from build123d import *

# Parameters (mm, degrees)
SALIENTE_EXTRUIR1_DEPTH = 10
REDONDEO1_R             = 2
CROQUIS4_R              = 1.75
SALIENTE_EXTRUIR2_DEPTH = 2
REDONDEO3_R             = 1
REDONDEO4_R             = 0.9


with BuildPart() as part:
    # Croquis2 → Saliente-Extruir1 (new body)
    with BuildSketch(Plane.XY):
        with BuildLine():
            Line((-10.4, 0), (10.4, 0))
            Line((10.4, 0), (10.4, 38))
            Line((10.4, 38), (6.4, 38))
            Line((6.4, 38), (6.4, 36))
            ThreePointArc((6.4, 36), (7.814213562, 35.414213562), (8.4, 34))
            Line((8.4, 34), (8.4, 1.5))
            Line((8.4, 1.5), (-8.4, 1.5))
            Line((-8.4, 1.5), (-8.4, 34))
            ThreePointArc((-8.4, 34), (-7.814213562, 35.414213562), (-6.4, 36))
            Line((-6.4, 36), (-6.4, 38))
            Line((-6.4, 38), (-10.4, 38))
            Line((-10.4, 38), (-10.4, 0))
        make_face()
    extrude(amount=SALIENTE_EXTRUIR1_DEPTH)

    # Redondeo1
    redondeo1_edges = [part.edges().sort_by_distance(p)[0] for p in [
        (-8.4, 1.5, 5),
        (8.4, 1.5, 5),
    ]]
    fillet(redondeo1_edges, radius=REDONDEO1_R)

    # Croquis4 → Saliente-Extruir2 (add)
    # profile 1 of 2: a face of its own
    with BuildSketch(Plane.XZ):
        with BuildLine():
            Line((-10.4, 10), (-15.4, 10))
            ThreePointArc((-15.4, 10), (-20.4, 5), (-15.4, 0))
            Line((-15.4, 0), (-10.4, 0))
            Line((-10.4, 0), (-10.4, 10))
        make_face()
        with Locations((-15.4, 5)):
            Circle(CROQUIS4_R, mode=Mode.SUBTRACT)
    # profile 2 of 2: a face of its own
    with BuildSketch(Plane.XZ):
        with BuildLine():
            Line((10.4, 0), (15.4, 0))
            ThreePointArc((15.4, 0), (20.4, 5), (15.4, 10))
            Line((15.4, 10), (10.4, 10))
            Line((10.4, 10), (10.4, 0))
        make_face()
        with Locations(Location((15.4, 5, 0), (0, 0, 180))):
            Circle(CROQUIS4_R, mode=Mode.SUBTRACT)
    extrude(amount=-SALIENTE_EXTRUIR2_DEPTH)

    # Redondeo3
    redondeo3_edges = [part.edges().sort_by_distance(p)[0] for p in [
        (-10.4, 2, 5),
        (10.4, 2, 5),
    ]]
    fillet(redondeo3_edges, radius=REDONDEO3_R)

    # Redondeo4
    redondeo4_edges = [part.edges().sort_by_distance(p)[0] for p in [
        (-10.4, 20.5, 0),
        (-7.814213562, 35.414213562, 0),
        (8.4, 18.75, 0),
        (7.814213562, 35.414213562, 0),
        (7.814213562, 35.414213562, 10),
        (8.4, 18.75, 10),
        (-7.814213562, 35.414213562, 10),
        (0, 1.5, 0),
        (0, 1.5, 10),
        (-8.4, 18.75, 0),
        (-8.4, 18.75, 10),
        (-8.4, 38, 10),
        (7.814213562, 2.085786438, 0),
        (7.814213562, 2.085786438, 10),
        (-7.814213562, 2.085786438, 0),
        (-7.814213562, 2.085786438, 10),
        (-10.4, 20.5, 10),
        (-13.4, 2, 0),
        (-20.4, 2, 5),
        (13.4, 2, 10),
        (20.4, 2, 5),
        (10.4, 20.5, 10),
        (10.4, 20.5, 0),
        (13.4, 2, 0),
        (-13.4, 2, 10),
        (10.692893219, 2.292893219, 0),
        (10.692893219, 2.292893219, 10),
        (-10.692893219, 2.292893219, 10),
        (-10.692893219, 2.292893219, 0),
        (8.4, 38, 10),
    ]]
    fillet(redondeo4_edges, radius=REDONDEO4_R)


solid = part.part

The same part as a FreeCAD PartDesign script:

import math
import FreeCAD as App
import Part
import Sketcher
from FreeCAD import Vector
Q = App.Units.Quantity


def edges_at(feature, points):
    """Names of the edges that pass closest to the given points."""
    edges = feature.Shape.Edges
    near = lambda p: min(range(len(edges)), key=lambda i: edges[i].distToShape(Part.Vertex(*p))[0])
    return sorted({f"Edge{near(p) + 1}" for p in points})

doc = App.newDocument("Part")
body = doc.addObject("PartDesign::Body", "Body")

# Sketch on XY plane
sketch1 = body.newObject("Sketcher::SketchObject", "Sketch")
sketch1.AttachmentSupport = (doc.getObject("XY_Plane"), [""])
sketch1.MapMode = "FlatFace"
sketch1.addGeometry(Part.LineSegment(Vector(-10.4, 0, 0), Vector(10.4, 0, 0)), False)
sketch1.addGeometry(Part.LineSegment(Vector(10.4, 0, 0), Vector(10.4, 38, 0)), False)
sketch1.addGeometry(Part.LineSegment(Vector(10.4, 38, 0), Vector(6.4, 38, 0)), False)
sketch1.addGeometry(Part.LineSegment(Vector(6.4, 38, 0), Vector(6.4, 36, 0)), False)
sketch1.addGeometry(Part.ArcOfCircle(Part.Circle(Vector(6.4, 34, 0), Vector(0, 0, 1), 2), math.radians(0), math.radians(90)), False)
sketch1.addGeometry(Part.LineSegment(Vector(8.4, 34, 0), Vector(8.4, 1.5, 0)), False)
sketch1.addGeometry(Part.LineSegment(Vector(8.4, 1.5, 0), Vector(-8.4, 1.5, 0)), False)
sketch1.addGeometry(Part.LineSegment(Vector(-8.4, 1.5, 0), Vector(-8.4, 34, 0)), False)
sketch1.addGeometry(Part.ArcOfCircle(Part.Circle(Vector(-6.4, 34, 0), Vector(0, 0, 1), 2), math.radians(90), math.radians(180)), False)
sketch1.addGeometry(Part.LineSegment(Vector(-6.4, 36, 0), Vector(-6.4, 38, 0)), False)
sketch1.addGeometry(Part.LineSegment(Vector(-6.4, 38, 0), Vector(-10.4, 38, 0)), False)
sketch1.addGeometry(Part.LineSegment(Vector(-10.4, 38, 0), Vector(-10.4, 0, 0)), False)
sketch1.addConstraint(Sketcher.Constraint("Coincident", 0, 2, 1, 1))
sketch1.addConstraint(Sketcher.Constraint("Coincident", 1, 2, 2, 1))
sketch1.addConstraint(Sketcher.Constraint("Coincident", 2, 2, 3, 1))
sketch1.addConstraint(Sketcher.Constraint("Coincident", 3, 2, 4, 2))
sketch1.addConstraint(Sketcher.Constraint("Tangent", 4, 1, 5, 1))
sketch1.addConstraint(Sketcher.Constraint("Coincident", 5, 2, 6, 1))
sketch1.addConstraint(Sketcher.Constraint("Coincident", 6, 2, 7, 1))
sketch1.addConstraint(Sketcher.Constraint("Tangent", 7, 2, 8, 2))
sketch1.addConstraint(Sketcher.Constraint("Coincident", 8, 1, 9, 1))
sketch1.addConstraint(Sketcher.Constraint("Coincident", 9, 2, 10, 1))
sketch1.addConstraint(Sketcher.Constraint("Coincident", 10, 2, 11, 1))
sketch1.addConstraint(Sketcher.Constraint("Coincident", 11, 2, 0, 1))
sketch1.addConstraint(Sketcher.Constraint("Horizontal", 0))
sketch1.addConstraint(Sketcher.Constraint("Vertical", 1))
sketch1.addConstraint(Sketcher.Constraint("Horizontal", 2))
sketch1.addConstraint(Sketcher.Constraint("Vertical", 3))
sketch1.addConstraint(Sketcher.Constraint("Vertical", 5))
sketch1.addConstraint(Sketcher.Constraint("Horizontal", 6))
sketch1.addConstraint(Sketcher.Constraint("Vertical", 7))
sketch1.addConstraint(Sketcher.Constraint("Vertical", 9))
sketch1.addConstraint(Sketcher.Constraint("Horizontal", 10))
sketch1.addConstraint(Sketcher.Constraint("Vertical", 11))
sketch1.addConstraint(Sketcher.Constraint("Equal", 4, 8))
sketch1.addConstraint(Sketcher.Constraint("Symmetric", 0, 2, 11, 2, -1, 1))
sketch1.addConstraint(Sketcher.Constraint("Symmetric", 4, 3, 8, 3, -2))
sketch1.addConstraint(Sketcher.Constraint("Symmetric", 2, 2, 9, 2, -2))
sketch1.addConstraint(Sketcher.Constraint("Vertical", 4, 3, 2, 2))
sketch1.addConstraint(Sketcher.Constraint("Radius", 4, Q("2 mm")))
sketch1.addConstraint(Sketcher.Constraint("DistanceX", 2, 2, 2, 1, Q("4 mm")))
sketch1.addConstraint(Sketcher.Constraint("DistanceY", 1, 1, 1, 2, Q("38 mm")))
sketch1.addConstraint(Sketcher.Constraint("DistanceY", 3, 2, 3, 1, Q("2 mm")))
sketch1.addConstraint(Sketcher.Constraint("DistanceX", 0, 1, 0, 2, Q("20.8 mm")))
sketch1.addConstraint(Sketcher.Constraint("DistanceY", 5, 2, 5, 1, Q("32.5 mm")))
pad1 = body.newObject("PartDesign::Pad", "Pad")
pad1.Profile = sketch1
pad1.Length = 10
doc.recompute()

fillet = body.newObject("PartDesign::Fillet", "Fillet")
fillet.Base = (pad1, edges_at(pad1, [(-8.4, 1.5, 5), (8.4, 1.5, 5)]))
fillet.Radius = 2

# Sketch on XZ plane
sketch2 = body.newObject("Sketcher::SketchObject", "Sketch001")
sketch2.AttachmentSupport = (doc.getObject("XZ_Plane"), [""])
sketch2.MapMode = "FlatFace"
sketch2.addGeometry(Part.LineSegment(Vector(-10.4, 10, 0), Vector(-15.4, 10, 0)), False)
sketch2.addGeometry(Part.ArcOfCircle(Part.Circle(Vector(-15.4, 5, 0), Vector(0, 0, 1), 5), math.radians(90), math.radians(270)), False)
sketch2.addGeometry(Part.LineSegment(Vector(-15.4, 0, 0), Vector(-10.4, 0, 0)), False)
sketch2.addGeometry(Part.LineSegment(Vector(-10.4, 0, 0), Vector(-10.4, 10, 0)), False)
sketch2.addGeometry(Part.Circle(Vector(-15.4, 5, 0), Vector(0, 0, 1), 1.8), False)
sketch2.addGeometry(Part.LineSegment(Vector(10.4, 0, 0), Vector(15.4, 0, 0)), False)
sketch2.addGeometry(Part.ArcOfCircle(Part.Circle(Vector(15.4, 5, 0), Vector(0, 0, 1), 5), math.radians(-90), math.radians(90)), False)
sketch2.addGeometry(Part.LineSegment(Vector(15.4, 10, 0), Vector(10.4, 10, 0)), False)
sketch2.addGeometry(Part.LineSegment(Vector(10.4, 10, 0), Vector(10.4, 0, 0)), False)
sketch2.addGeometry(Part.Circle(Vector(15.4, 5, 0), Vector(0, 0, 1), 1.8), False)
sketch2.addConstraint(Sketcher.Constraint("Tangent", 0, 2, 1, 1))
sketch2.addConstraint(Sketcher.Constraint("Tangent", 1, 2, 2, 1))
sketch2.addConstraint(Sketcher.Constraint("Coincident", 2, 2, 3, 1))
sketch2.addConstraint(Sketcher.Constraint("Coincident", 3, 2, 0, 1))
sketch2.addConstraint(Sketcher.Constraint("Tangent", 5, 2, 6, 1))
sketch2.addConstraint(Sketcher.Constraint("Tangent", 6, 2, 7, 1))
sketch2.addConstraint(Sketcher.Constraint("Coincident", 7, 2, 8, 1))
sketch2.addConstraint(Sketcher.Constraint("Coincident", 8, 2, 5, 1))
sketch2.addConstraint(Sketcher.Constraint("Horizontal", 0))
sketch2.addConstraint(Sketcher.Constraint("Horizontal", 2))
sketch2.addConstraint(Sketcher.Constraint("Vertical", 3))
sketch2.addConstraint(Sketcher.Constraint("Horizontal", 5))
sketch2.addConstraint(Sketcher.Constraint("Horizontal", 7))
sketch2.addConstraint(Sketcher.Constraint("Vertical", 8))
sketch2.addConstraint(Sketcher.Constraint("Coincident", 4, 3, 1, 3))
sketch2.addConstraint(Sketcher.Constraint("Coincident", 9, 3, 6, 3))
sketch2.addConstraint(Sketcher.Constraint("Equal", 1, 6))
sketch2.addConstraint(Sketcher.Constraint("Equal", 4, 9))
sketch2.addConstraint(Sketcher.Constraint("Symmetric", 1, 2, 5, 2, -1, 1))
sketch2.addConstraint(Sketcher.Constraint("Symmetric", 3, 2, 7, 2, -2))
sketch2.addConstraint(Sketcher.Constraint("Radius", 1, Q("5 mm")))
sketch2.addConstraint(Sketcher.Constraint("Diameter", 4, Q("3.5 mm")))
sketch2.addConstraint(Sketcher.Constraint("DistanceX", 0, 2, 0, 1, Q("5 mm")))
sketch2.addConstraint(Sketcher.Constraint("DistanceX", 1, 3, -1, 1, Q("15.4 mm")))
pad2 = body.newObject("PartDesign::Pad", "Pad001")
pad2.Profile = sketch2
pad2.Length = 2
pad2.Reversed = True
doc.recompute()

fillet2 = body.newObject("PartDesign::Fillet", "Fillet001")
fillet2.Base = (pad2, edges_at(pad2, [(-10.4, 2, 5), (10.4, 2, 5)]))
fillet2.Radius = 1
doc.recompute()

fillet3 = body.newObject("PartDesign::Fillet", "Fillet002")
fillet3.Base = (fillet2, edges_at(fillet2, [
    (-10.4, 20.5, 0),
    (-7.814, 35.414, 0),
    (8.4, 18.75, 0),
    (7.814, 35.414, 0),
    (7.814, 35.414, 10),
    (8.4, 18.75, 10),
    (-7.814, 35.414, 10),
    (0, 1.5, 0),
    (0, 1.5, 10),
    (-8.4, 18.75, 0),
    (-8.4, 18.75, 10),
    (-8.4, 38, 10),
    (7.814, 2.086, 0),
    (7.814, 2.086, 10),
    (-7.814, 2.086, 0),
    (-7.814, 2.086, 10),
    (-10.4, 20.5, 10),
    (-13.4, 2, 0),
    (-20.4, 2, 5),
    (13.4, 2, 10),
    (20.4, 2, 5),
    (10.4, 20.5, 10),
    (10.4, 20.5, 0),
    (13.4, 2, 0),
    (-13.4, 2, 10),
    (10.693, 2.293, 0),
    (10.693, 2.293, 10),
    (-10.693, 2.293, 10),
    (-10.693, 2.293, 0),
    (8.4, 38, 10),
]))
fillet3.Radius = 0.9

doc.recompute()
